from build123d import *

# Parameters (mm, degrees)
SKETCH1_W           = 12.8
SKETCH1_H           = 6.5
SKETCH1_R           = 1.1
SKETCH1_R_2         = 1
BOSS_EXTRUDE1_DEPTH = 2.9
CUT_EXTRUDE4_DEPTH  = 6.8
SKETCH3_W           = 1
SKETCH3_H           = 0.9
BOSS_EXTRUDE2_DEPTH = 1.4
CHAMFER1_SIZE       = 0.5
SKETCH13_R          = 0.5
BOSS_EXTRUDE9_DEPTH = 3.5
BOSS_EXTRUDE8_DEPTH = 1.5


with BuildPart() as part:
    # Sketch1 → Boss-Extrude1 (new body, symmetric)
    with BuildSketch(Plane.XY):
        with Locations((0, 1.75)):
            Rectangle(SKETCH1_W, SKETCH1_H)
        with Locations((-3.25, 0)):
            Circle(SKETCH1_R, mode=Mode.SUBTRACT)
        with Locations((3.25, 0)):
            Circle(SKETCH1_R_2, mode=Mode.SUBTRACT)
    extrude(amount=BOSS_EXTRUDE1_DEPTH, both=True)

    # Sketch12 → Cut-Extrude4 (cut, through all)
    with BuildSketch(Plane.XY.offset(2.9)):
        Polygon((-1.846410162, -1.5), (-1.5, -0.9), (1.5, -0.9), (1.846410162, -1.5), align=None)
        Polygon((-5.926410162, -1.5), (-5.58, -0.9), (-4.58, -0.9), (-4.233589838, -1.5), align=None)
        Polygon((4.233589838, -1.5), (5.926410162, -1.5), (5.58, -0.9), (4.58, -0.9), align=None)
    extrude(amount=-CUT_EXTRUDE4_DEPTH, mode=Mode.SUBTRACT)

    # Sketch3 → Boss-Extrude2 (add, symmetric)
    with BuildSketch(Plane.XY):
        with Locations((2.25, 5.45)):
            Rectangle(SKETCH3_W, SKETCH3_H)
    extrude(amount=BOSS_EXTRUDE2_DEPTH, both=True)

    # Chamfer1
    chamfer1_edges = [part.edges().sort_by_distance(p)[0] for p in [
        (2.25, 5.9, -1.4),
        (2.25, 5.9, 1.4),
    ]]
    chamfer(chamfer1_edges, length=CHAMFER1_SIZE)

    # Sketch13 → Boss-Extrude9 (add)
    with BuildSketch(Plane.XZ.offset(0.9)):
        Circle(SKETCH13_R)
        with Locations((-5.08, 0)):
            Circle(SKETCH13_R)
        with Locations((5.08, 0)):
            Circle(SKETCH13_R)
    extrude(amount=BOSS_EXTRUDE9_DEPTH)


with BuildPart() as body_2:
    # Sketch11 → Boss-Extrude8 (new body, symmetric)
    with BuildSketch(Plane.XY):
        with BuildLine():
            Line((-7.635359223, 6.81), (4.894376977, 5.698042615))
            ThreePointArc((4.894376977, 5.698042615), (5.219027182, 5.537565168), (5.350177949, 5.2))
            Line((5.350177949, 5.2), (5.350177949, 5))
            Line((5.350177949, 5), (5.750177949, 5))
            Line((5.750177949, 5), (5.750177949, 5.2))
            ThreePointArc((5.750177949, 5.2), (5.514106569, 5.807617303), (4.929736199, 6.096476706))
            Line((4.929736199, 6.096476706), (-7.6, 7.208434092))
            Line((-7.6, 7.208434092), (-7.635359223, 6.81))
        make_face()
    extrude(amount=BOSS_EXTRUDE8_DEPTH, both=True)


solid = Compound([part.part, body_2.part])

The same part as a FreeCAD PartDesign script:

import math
import FreeCAD as App
import Part
import Sketcher
Q = App.Units.Quantity


def edges_at(feature, points):
    """Names of the edges that pass closest to the given points."""
    edges = feature.Shape.Edges
    near = lambda p: min(range(len(edges)), key=lambda i: edges[i].distToShape(Part.Vertex(*p))[0])
    return sorted({f"Edge{near(p) + 1}" for p in points})

doc = App.newDocument("Part")
params = doc.addObject("Spreadsheet::Sheet", "Params")
for row, (alias, value) in enumerate([
    ("sketch1_diameter", "2 mm"),
    ("sketch1_diameter2", "2.2 mm"),
    ("sketch1_width", "12.8 mm"),
    ("sketch1_height", "6.5 mm"),
    ("pad1_length", "5.8 mm"),
    ("sketch2_width", "3 mm"),
    ("sketch2_width2", "1 mm"),
    ("sketch3_width", "1 mm"),
    ("sketch3_height", "0.9 mm"),
    ("pad2_length", "2.8 mm"),
    ("chamfer_size", "0.5 mm"),
    ("sketch4_diameter", "1 mm"),
    ("pad3_length", "3.5 mm"),
    ("sketch5_radius", "0.5 mm"),
    ("sketch5_radius2", "0.9 mm"),
    ("sketch5_height", "0.2 mm"),
    ("pad4_length", "3 mm"),
], start=1):
    params.set(f"A{row}", alias)
    params.set(f"B{row}", "=" + value)
    params.setAlias(f"B{row}", alias)

body = doc.addObject("PartDesign::Body", "Body")

# Sketch on XY plane
sketch1 = body.newObject("Sketcher::SketchObject", "Sketch")
sketch1.AttachmentSupport = (doc.getObject("XY_Plane"), [""])
sketch1.MapMode = "FlatFace"
sketch1.addGeometry([
    Part.LineSegment(App.Vector(-6.4, 5, 0), App.Vector(-6.4, -1.5, 0)),  # 0
    Part.LineSegment(App.Vector(-6.4, -1.5, 0), App.Vector(6.4, -1.5, 0)),  # 1
    Part.LineSegment(App.Vector(6.4, -1.5, 0), App.Vector(6.4, 5, 0)),  # 2
    Part.LineSegment(App.Vector(6.4, 5, 0), App.Vector(-6.4, 5, 0)),  # 3
    Part.Circle(App.Vector(-3.25, 0, 0), App.Vector(0, 0, 1), 1.1),  # 4
    Part.Circle(App.Vector(3.25, 0, 0), App.Vector(0, 0, 1), 1),  # 5
], False)
sketch1.addConstraint([
    Sketcher.Constraint("Coincident", 0, 2, 1, 1),
    Sketcher.Constraint("Coincident", 1, 2, 2, 1),
    Sketcher.Constraint("Coincident", 2, 2, 3, 1),
    Sketcher.Constraint("Coincident", 3, 2, 0, 1),
    Sketcher.Constraint("Vertical", 0),
    Sketcher.Constraint("Horizontal", 1),
    Sketcher.Constraint("Vertical", 2),
    Sketcher.Constraint("Horizontal", 3),
    Sketcher.Constraint("Symmetric", 4, 3, 5, 3, -1, 1),
    Sketcher.Constraint("PointOnObject", 4, 3, -1),
    Sketcher.Constraint("Diameter", 5, 2.0),
    Sketcher.Constraint("Diameter", 4, 2.2),
    Sketcher.Constraint("DistanceX", 1, 1, 1, 2, 12.8),
    Sketcher.Constraint("DistanceY", 0, 2, 0, 1, 6.5),
    Sketcher.Constraint("DistanceY", -1, 1, 2, 2, 5.0),
    Sketcher.Constraint("DistanceX", 0, 2, -1, 1, 6.4),
    Sketcher.Constraint("DistanceX", 4, 3, 5, 3, 6.5),
])
sketch1.setExpression("Constraints[10]", "Params.sketch1_diameter")
sketch1.setExpression("Constraints[11]", "Params.sketch1_diameter2")
sketch1.setExpression("Constraints[12]", "Params.sketch1_width")
sketch1.setExpression("Constraints[13]", "Params.sketch1_height")
pad1 = body.newObject("PartDesign::Pad", "Pad")
pad1.Profile = sketch1
pad1.setExpression("Length", "Params.pad1_length")
pad1.Midplane = True

# Sketch on XY plane
sketch2 = body.newObject("Sketcher::SketchObject", "Sketch001")
sketch2.AttachmentSupport = (doc.getObject("XY_Plane"), [""])
sketch2.MapMode = "FlatFace"
sketch2.AttachmentOffset = App.Placement(App.Vector(0, 0, 2.9), App.Rotation())
sketch2.addGeometry([
    Part.LineSegment(App.Vector(-1.5, -0.9, 0), App.Vector(-1.84641, -1.5, 0)),  # 0
    Part.LineSegment(App.Vector(-1.84641, -1.5, 0), App.Vector(1.84641, -1.5, 0)),  # 1
    Part.LineSegment(App.Vector(1.84641, -1.5, 0), App.Vector(1.5, -0.9, 0)),  # 2
    Part.LineSegment(App.Vector(1.5, -0.9, 0), App.Vector(-1.5, -0.9, 0)),  # 3
    Part.LineSegment(App.Vector(-5.58, -0.9, 0), App.Vector(-5.92641, -1.5, 0)),  # 4
    Part.LineSegment(App.Vector(-5.92641, -1.5, 0), App.Vector(-4.23359, -1.5, 0)),  # 5
    Part.LineSegment(App.Vector(-4.23359, -1.5, 0), App.Vector(-4.58, -0.9, 0)),  # 6
    Part.LineSegment(App.Vector(-4.58, -0.9, 0), App.Vector(-5.58, -0.9, 0)),  # 7
    Part.LineSegment(App.Vector(4.23359, -1.5, 0), App.Vector(5.92641, -1.5, 0)),  # 8
    Part.LineSegment(App.Vector(5.92641, -1.5, 0), App.Vector(5.58, -0.9, 0)),  # 9
    Part.LineSegment(App.Vector(5.58, -0.9, 0), App.Vector(4.58, -0.9, 0)),  # 10
    Part.LineSegment(App.Vector(4.58, -0.9, 0), App.Vector(4.23359, -1.5, 0)),  # 11
], False)
sketch2.addConstraint([
    Sketcher.Constraint("Coincident", 0, 2, 1, 1),
    Sketcher.Constraint("Coincident", 1, 2, 2, 1),
    Sketcher.Constraint("Coincident", 2, 2, 3, 1),
    Sketcher.Constraint("Coincident", 3, 2, 0, 1),
    Sketcher.Constraint("Coincident", 4, 2, 5, 1),
    Sketcher.Constraint("Coincident", 5, 2, 6, 1),
    Sketcher.Constraint("Coincident", 6, 2, 7, 1),
    Sketcher.Constraint("Coincident", 7, 2, 4, 1),
    Sketcher.Constraint("Coincident", 8, 2, 9, 1),
    Sketcher.Constraint("Coincident", 9, 2, 10, 1),
    Sketcher.Constraint("Coincident", 10, 2, 11, 1),
    Sketcher.Constraint("Coincident", 11, 2, 8, 1),
    Sketcher.Constraint("Horizontal", 1),
    Sketcher.Constraint("Horizontal", 3),
    Sketcher.Constraint("Horizontal", 5),
    Sketcher.Constraint("Horizontal", 7),
    Sketcher.Constraint("Horizontal", 8),
    Sketcher.Constraint("Horizontal", 10),
    Sketcher.Constraint("Symmetric", 4, 2, 8, 2, -2),
    Sketcher.Constraint("Symmetric", 7, 2, 9, 2, -2),
    Sketcher.Constraint("Parallel", 0, 4),
    Sketcher.Constraint("Parallel", 2, 6),
    Sketcher.Constraint("Parallel", 6, 9),
    Sketcher.Constraint("Parallel", 4, 11),
    Sketcher.Constraint("Horizontal", 1, 2, 4, 2),
    Sketcher.Constraint("Horizontal", 3, 2, 6, 2),
    Sketcher.Constraint("Equal", 5, 8),
    Sketcher.Constraint("DistanceX", 3, 2, 3, 1, 3.0),
    Sketcher.Constraint("DistanceX", 7, 2, 7, 1, 1.0),
    Sketcher.Constraint("Angle", 0, Q("-120 deg")),
    Sketcher.Constraint("DistanceY", 0, 2, -1, 1, 1.5),
    Sketcher.Constraint("DistanceX", -1, 1, 2, 2, 1.5),
    Sketcher.Constraint("DistanceY", 2, 2, -1, 1, 0.9),
    Sketcher.Constraint("DistanceX", 6, 2, -1, 1, 4.58),
])
sketch2.setExpression("Constraints[27]", "Params.sketch2_width")
sketch2.setExpression("Constraints[28]", "Params.sketch2_width2")
pocket1 = body.newObject("PartDesign::Pocket", "Pocket")
pocket1.Profile = sketch2
pocket1.Type = "ThroughAll"

# Sketch on XY plane
sketch3 = body.newObject("Sketcher::SketchObject", "Sketch002")
sketch3.AttachmentSupport = (doc.getObject("XY_Plane"), [""])
sketch3.MapMode = "FlatFace"
sketch3.addGeometry([
    Part.LineSegment(App.Vector(1.75, 5.9, 0), App.Vector(1.75, 5, 0)),
    Part.LineSegment(App.Vector(1.75, 5, 0), App.Vector(2.75, 5, 0)),
    Part.LineSegment(App.Vector(2.75, 5, 0), App.Vector(2.75, 5.9, 0)),
    Part.LineSegment(App.Vector(2.75, 5.9, 0), App.Vector(1.75, 5.9, 0)),
], False)
sketch3.addConstraint([
    Sketcher.Constraint("Coincident", 0, 2, 1, 1),
    Sketcher.Constraint("Coincident", 1, 2, 2, 1),
    Sketcher.Constraint("Coincident", 2, 2, 3, 1),
    Sketcher.Constraint("Coincident", 3, 2, 0, 1),
    Sketcher.Constraint("Vertical", 0),
    Sketcher.Constraint("Horizontal", 1),
    Sketcher.Constraint("Vertical", 2),
    Sketcher.Constraint("Horizontal", 3),
    Sketcher.Constraint("DistanceX", 1, 1, 1, 2, 1.0),
    Sketcher.Constraint("DistanceY", 0, 2, 0, 1, 0.9),
    Sketcher.Constraint("DistanceY", -1, 1, 0, 2, 5.0),
    Sketcher.Constraint("DistanceX", -1, 1, 0, 2, 1.75),
])
sketch3.setExpression("Constraints[8]", "Params.sketch3_width")
sketch3.setExpression("Constraints[9]", "Params.sketch3_height")
pad2 = body.newObject("PartDesign::Pad", "Pad001")
pad2.Profile = sketch3
pad2.setExpression("Length", "Params.pad2_length")
pad2.Midplane = True
doc.recompute()

chamfer = body.newObject("PartDesign::Chamfer", "Chamfer")
chamfer.Base = (pad2, edges_at(pad2, [(2.25, 5.9, -1.4), (2.25, 5.9, 1.4)]))
chamfer.setExpression("Size", "Params.chamfer_size")

# Sketch on XZ plane
sketch4 = body.newObject("Sketcher::SketchObject", "Sketch003")
sketch4.AttachmentSupport = (doc.getObject("XZ_Plane"), [""])
sketch4.MapMode = "FlatFace"
sketch4.AttachmentOffset = App.Placement(App.Vector(0, 0, 0.9), App.Rotation())
sketch4.addGeometry([
    Part.Circle(App.Vector(0, 0, 0), App.Vector(0, 0, 1), 0.5),
    Part.Circle(App.Vector(-5.08, 0, 0), App.Vector(0, 0, 1), 0.5),
    Part.Circle(App.Vector(5.08, 0, 0), App.Vector(0, 0, 1), 0.5),
], False)
sketch4.addConstraint([
    Sketcher.Constraint("Coincident", 0, 3, -1, 1),
    Sketcher.Constraint("Equal", 0, 1),
    Sketcher.Constraint("Equal", 1, 2),
    Sketcher.Constraint("Symmetric", 1, 3, 2, 3, -1, 1),
    Sketcher.Constraint("PointOnObject", 1, 3, -1),
    Sketcher.Constraint("Diameter", 0, 1.0),
    Sketcher.Constraint("DistanceX", 1, 3, -1, 1, 5.08),
])
sketch4.setExpression("Constraints[5]", "Params.sketch4_diameter")
pad3 = body.newObject("PartDesign::Pad", "Pad002")
pad3.Profile = sketch4
pad3.setExpression("Length", "Params.pad3_length")
body2 = doc.addObject("PartDesign::Body", "Body001")

# Sketch on XY plane
sketch5 = body2.newObject("Sketcher::SketchObject", "Sketch004")
sketch5.AttachmentSupport = (doc.getObject("XY_Plane001"), [""])
sketch5.MapMode = "FlatFace"
sketch5.addGeometry([
    Part.LineSegment(App.Vector(-7.635359, 6.81, 0), App.Vector(4.894377, 5.698043, 0)),  # 0
    Part.ArcOfCircle(Part.Circle(App.Vector(4.850178, 5.2, 0), App.Vector(0, 0, 1), 0.5), math.radians(0), math.radians(84.928545)),  # 1
    Part.LineSegment(App.Vector(5.350178, 5.2, 0), App.Vector(5.350178, 5, 0)),  # 2
    Part.LineSegment(App.Vector(5.350178, 5, 0), App.Vector(5.750178, 5, 0)),  # 3
    Part.LineSegment(App.Vector(5.750178, 5, 0), App.Vector(5.750178, 5.2, 0)),  # 4
    Part.ArcOfCircle(Part.Circle(App.Vector(4.850178, 5.2, 0), App.Vector(0, 0, 1), 0.9), math.radians(0), math.radians(84.928545)),  # 5
    Part.LineSegment(App.Vector(4.929736, 6.096477, 0), App.Vector(-7.6, 7.208434, 0)),  # 6
    Part.LineSegment(App.Vector(-7.6, 7.208434, 0), App.Vector(-7.635359, 6.81, 0)),  # 7
], False)
sketch5.addConstraint([
    Sketcher.Constraint("Tangent", 0, 2, 1, 2),
    Sketcher.Constraint("Tangent", 1, 1, 2, 1),
    Sketcher.Constraint("Coincident", 2, 2, 3, 1),
    Sketcher.Constraint("Coincident", 3, 2, 4, 1),
    Sketcher.Constraint("Tangent", 4, 2, 5, 1),
    Sketcher.Constraint("Tangent", 5, 2, 6, 1),
    Sketcher.Constraint("Coincident", 6, 2, 7, 1),
    Sketcher.Constraint("Coincident", 7, 2, 0, 1),
    Sketcher.Constraint("Vertical", 2),
    Sketcher.Constraint("Horizontal", 3),
    Sketcher.Constraint("Vertical", 4),
    Sketcher.Constraint("Coincident", 5, 3, 1, 3),
    Sketcher.Constraint("Parallel", 0, 6),
    Sketcher.Constraint("Perpendicular", 6, 7),
    Sketcher.Constraint("Radius", 1, 0.5),
    Sketcher.Constraint("Radius", 5, 0.9),
    Sketcher.Constraint("DistanceY", 2, 2, 2, 1, 0.2),
    Sketcher.Constraint("DistanceY", -1, 1, 2, 2, 5.0),
    Sketcher.Constraint("DistanceX", 6, 2, -1, 1, 7.6),
    Sketcher.Constraint("DistanceY", -1, 1, 7, 2, 6.81),
    Sketcher.Constraint("Distance", 0, 12.57898),
])
sketch5.setExpression("Constraints[14]", "Params.sketch5_radius")
sketch5.setExpression("Constraints[15]", "Params.sketch5_radius2")
sketch5.setExpression("Constraints[16]", "Params.sketch5_height")
pad4 = body2.newObject("PartDesign::Pad", "Pad003")
pad4.Profile = sketch5
pad4.setExpression("Length", "Params.pad4_length")
pad4.Midplane = True

doc.recompute()
